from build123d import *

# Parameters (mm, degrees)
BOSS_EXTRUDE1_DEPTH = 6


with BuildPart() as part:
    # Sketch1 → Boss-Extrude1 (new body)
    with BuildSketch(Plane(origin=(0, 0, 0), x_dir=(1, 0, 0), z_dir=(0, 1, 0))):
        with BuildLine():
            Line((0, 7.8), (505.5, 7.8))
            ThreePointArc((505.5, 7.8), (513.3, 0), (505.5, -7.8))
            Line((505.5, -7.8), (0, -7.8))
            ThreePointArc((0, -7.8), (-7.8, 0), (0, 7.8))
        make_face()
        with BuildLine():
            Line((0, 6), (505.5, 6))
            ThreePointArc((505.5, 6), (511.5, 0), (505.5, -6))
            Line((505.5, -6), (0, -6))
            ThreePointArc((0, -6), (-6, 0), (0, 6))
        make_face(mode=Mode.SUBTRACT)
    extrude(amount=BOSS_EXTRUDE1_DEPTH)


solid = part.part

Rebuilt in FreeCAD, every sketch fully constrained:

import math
import FreeCAD as App
import Part
import Sketcher
from FreeCAD import Vector
Q = App.Units.Quantity

doc = App.newDocument("Part")
body = doc.addObject("PartDesign::Body", "Body")

# Sketch on XZ plane
sketch1 = body.newObject("Sketcher::SketchObject", "Sketch")
sketch1.AttachmentSupport = (doc.getObject("XZ_Plane"), [""])
sketch1.MapMode = "FlatFace"
sketch1.addGeometry(Part.LineSegment(Vector(506, -8, 0), Vector(0, -8, 0)), False)
sketch1.addGeometry(Part.ArcOfCircle(Part.Circle(Vector(0, 0, 0), Vector(0, 0, 1), 8), math.radians(90), math.radians(270)), False)
sketch1.addGeometry(Part.LineSegment(Vector(0, 8, 0), Vector(506, 8, 0)), False)
sketch1.addGeometry(Part.ArcOfCircle(Part.Circle(Vector(506, 0, 0), Vector(0, 0, 1), 8), math.radians(-90), math.radians(90)), False)
sketch1.addGeometry(Part.LineSegment(Vector(0, -6, 0), Vector(506, -6, 0)), False)
sketch1.addGeometry(Part.ArcOfCircle(Part.Circle(Vector(506, 0, 0), Vector(0, 0, 1), 6), math.radians(-90), math.radians(90)), False)
sketch1.addGeometry(Part.LineSegment(Vector(506, 6, 0), Vector(0, 6, 0)), False)
sketch1.addGeometry(Part.ArcOfCircle(Part.Circle(Vector(0, 0, 0), Vector(0, 0, 1), 6), math.radians(90), math.radians(270)), False)
sketch1.addConstraint(Sketcher.Constraint("Tangent", 0, 2, 1, 2))
sketch1.addConstraint(Sketcher.Constraint("Tangent", 1, 1, 2, 1))
sketch1.addConstraint(Sketcher.Constraint("Tangent", 2, 2, 3, 2))
sketch1.addConstraint(Sketcher.Constraint("Tangent", 3, 1, 0, 1))
sketch1.addConstraint(Sketcher.Constraint("Tangent", 4, 2, 5, 1))
sketch1.addConstraint(Sketcher.Constraint("Tangent", 5, 2, 6, 1))
sketch1.addConstraint(Sketcher.Constraint("Tangent", 6, 2, 7, 1))
sketch1.addConstraint(Sketcher.Constraint("Tangent", 7, 2, 4, 1))
sketch1.addConstraint(Sketcher.Constraint("Horizontal", 0))
sketch1.addConstraint(Sketcher.Constraint("Horizontal", 2))
sketch1.addConstraint(Sketcher.Constraint("Horizontal", 4))
sketch1.addConstraint(Sketcher.Constraint("Horizontal", 6))
sketch1.addConstraint(Sketcher.Constraint("Coincident", 1, 3, -1, 1))
sketch1.addConstraint(Sketcher.Constraint("Coincident", 7, 3, -1, 1))
sketch1.addConstraint(Sketcher.Constraint("Vertical", 5, 3, 2, 2))
sketch1.addConstraint(Sketcher.Constraint("Radius", 5, Q("6 mm")))
sketch1.addConstraint(Sketcher.Constraint("Radius", 1, Q("7.8 mm")))
sketch1.addConstraint(Sketcher.Constraint("DistanceX", 0, 2, 0, 1, Q("505.5 mm")))
pad1 = body.newObject("PartDesign::Pad", "Pad")
pad1.Profile = sketch1
pad1.Length = 6
pad1.Reversed = True

doc.recompute()
